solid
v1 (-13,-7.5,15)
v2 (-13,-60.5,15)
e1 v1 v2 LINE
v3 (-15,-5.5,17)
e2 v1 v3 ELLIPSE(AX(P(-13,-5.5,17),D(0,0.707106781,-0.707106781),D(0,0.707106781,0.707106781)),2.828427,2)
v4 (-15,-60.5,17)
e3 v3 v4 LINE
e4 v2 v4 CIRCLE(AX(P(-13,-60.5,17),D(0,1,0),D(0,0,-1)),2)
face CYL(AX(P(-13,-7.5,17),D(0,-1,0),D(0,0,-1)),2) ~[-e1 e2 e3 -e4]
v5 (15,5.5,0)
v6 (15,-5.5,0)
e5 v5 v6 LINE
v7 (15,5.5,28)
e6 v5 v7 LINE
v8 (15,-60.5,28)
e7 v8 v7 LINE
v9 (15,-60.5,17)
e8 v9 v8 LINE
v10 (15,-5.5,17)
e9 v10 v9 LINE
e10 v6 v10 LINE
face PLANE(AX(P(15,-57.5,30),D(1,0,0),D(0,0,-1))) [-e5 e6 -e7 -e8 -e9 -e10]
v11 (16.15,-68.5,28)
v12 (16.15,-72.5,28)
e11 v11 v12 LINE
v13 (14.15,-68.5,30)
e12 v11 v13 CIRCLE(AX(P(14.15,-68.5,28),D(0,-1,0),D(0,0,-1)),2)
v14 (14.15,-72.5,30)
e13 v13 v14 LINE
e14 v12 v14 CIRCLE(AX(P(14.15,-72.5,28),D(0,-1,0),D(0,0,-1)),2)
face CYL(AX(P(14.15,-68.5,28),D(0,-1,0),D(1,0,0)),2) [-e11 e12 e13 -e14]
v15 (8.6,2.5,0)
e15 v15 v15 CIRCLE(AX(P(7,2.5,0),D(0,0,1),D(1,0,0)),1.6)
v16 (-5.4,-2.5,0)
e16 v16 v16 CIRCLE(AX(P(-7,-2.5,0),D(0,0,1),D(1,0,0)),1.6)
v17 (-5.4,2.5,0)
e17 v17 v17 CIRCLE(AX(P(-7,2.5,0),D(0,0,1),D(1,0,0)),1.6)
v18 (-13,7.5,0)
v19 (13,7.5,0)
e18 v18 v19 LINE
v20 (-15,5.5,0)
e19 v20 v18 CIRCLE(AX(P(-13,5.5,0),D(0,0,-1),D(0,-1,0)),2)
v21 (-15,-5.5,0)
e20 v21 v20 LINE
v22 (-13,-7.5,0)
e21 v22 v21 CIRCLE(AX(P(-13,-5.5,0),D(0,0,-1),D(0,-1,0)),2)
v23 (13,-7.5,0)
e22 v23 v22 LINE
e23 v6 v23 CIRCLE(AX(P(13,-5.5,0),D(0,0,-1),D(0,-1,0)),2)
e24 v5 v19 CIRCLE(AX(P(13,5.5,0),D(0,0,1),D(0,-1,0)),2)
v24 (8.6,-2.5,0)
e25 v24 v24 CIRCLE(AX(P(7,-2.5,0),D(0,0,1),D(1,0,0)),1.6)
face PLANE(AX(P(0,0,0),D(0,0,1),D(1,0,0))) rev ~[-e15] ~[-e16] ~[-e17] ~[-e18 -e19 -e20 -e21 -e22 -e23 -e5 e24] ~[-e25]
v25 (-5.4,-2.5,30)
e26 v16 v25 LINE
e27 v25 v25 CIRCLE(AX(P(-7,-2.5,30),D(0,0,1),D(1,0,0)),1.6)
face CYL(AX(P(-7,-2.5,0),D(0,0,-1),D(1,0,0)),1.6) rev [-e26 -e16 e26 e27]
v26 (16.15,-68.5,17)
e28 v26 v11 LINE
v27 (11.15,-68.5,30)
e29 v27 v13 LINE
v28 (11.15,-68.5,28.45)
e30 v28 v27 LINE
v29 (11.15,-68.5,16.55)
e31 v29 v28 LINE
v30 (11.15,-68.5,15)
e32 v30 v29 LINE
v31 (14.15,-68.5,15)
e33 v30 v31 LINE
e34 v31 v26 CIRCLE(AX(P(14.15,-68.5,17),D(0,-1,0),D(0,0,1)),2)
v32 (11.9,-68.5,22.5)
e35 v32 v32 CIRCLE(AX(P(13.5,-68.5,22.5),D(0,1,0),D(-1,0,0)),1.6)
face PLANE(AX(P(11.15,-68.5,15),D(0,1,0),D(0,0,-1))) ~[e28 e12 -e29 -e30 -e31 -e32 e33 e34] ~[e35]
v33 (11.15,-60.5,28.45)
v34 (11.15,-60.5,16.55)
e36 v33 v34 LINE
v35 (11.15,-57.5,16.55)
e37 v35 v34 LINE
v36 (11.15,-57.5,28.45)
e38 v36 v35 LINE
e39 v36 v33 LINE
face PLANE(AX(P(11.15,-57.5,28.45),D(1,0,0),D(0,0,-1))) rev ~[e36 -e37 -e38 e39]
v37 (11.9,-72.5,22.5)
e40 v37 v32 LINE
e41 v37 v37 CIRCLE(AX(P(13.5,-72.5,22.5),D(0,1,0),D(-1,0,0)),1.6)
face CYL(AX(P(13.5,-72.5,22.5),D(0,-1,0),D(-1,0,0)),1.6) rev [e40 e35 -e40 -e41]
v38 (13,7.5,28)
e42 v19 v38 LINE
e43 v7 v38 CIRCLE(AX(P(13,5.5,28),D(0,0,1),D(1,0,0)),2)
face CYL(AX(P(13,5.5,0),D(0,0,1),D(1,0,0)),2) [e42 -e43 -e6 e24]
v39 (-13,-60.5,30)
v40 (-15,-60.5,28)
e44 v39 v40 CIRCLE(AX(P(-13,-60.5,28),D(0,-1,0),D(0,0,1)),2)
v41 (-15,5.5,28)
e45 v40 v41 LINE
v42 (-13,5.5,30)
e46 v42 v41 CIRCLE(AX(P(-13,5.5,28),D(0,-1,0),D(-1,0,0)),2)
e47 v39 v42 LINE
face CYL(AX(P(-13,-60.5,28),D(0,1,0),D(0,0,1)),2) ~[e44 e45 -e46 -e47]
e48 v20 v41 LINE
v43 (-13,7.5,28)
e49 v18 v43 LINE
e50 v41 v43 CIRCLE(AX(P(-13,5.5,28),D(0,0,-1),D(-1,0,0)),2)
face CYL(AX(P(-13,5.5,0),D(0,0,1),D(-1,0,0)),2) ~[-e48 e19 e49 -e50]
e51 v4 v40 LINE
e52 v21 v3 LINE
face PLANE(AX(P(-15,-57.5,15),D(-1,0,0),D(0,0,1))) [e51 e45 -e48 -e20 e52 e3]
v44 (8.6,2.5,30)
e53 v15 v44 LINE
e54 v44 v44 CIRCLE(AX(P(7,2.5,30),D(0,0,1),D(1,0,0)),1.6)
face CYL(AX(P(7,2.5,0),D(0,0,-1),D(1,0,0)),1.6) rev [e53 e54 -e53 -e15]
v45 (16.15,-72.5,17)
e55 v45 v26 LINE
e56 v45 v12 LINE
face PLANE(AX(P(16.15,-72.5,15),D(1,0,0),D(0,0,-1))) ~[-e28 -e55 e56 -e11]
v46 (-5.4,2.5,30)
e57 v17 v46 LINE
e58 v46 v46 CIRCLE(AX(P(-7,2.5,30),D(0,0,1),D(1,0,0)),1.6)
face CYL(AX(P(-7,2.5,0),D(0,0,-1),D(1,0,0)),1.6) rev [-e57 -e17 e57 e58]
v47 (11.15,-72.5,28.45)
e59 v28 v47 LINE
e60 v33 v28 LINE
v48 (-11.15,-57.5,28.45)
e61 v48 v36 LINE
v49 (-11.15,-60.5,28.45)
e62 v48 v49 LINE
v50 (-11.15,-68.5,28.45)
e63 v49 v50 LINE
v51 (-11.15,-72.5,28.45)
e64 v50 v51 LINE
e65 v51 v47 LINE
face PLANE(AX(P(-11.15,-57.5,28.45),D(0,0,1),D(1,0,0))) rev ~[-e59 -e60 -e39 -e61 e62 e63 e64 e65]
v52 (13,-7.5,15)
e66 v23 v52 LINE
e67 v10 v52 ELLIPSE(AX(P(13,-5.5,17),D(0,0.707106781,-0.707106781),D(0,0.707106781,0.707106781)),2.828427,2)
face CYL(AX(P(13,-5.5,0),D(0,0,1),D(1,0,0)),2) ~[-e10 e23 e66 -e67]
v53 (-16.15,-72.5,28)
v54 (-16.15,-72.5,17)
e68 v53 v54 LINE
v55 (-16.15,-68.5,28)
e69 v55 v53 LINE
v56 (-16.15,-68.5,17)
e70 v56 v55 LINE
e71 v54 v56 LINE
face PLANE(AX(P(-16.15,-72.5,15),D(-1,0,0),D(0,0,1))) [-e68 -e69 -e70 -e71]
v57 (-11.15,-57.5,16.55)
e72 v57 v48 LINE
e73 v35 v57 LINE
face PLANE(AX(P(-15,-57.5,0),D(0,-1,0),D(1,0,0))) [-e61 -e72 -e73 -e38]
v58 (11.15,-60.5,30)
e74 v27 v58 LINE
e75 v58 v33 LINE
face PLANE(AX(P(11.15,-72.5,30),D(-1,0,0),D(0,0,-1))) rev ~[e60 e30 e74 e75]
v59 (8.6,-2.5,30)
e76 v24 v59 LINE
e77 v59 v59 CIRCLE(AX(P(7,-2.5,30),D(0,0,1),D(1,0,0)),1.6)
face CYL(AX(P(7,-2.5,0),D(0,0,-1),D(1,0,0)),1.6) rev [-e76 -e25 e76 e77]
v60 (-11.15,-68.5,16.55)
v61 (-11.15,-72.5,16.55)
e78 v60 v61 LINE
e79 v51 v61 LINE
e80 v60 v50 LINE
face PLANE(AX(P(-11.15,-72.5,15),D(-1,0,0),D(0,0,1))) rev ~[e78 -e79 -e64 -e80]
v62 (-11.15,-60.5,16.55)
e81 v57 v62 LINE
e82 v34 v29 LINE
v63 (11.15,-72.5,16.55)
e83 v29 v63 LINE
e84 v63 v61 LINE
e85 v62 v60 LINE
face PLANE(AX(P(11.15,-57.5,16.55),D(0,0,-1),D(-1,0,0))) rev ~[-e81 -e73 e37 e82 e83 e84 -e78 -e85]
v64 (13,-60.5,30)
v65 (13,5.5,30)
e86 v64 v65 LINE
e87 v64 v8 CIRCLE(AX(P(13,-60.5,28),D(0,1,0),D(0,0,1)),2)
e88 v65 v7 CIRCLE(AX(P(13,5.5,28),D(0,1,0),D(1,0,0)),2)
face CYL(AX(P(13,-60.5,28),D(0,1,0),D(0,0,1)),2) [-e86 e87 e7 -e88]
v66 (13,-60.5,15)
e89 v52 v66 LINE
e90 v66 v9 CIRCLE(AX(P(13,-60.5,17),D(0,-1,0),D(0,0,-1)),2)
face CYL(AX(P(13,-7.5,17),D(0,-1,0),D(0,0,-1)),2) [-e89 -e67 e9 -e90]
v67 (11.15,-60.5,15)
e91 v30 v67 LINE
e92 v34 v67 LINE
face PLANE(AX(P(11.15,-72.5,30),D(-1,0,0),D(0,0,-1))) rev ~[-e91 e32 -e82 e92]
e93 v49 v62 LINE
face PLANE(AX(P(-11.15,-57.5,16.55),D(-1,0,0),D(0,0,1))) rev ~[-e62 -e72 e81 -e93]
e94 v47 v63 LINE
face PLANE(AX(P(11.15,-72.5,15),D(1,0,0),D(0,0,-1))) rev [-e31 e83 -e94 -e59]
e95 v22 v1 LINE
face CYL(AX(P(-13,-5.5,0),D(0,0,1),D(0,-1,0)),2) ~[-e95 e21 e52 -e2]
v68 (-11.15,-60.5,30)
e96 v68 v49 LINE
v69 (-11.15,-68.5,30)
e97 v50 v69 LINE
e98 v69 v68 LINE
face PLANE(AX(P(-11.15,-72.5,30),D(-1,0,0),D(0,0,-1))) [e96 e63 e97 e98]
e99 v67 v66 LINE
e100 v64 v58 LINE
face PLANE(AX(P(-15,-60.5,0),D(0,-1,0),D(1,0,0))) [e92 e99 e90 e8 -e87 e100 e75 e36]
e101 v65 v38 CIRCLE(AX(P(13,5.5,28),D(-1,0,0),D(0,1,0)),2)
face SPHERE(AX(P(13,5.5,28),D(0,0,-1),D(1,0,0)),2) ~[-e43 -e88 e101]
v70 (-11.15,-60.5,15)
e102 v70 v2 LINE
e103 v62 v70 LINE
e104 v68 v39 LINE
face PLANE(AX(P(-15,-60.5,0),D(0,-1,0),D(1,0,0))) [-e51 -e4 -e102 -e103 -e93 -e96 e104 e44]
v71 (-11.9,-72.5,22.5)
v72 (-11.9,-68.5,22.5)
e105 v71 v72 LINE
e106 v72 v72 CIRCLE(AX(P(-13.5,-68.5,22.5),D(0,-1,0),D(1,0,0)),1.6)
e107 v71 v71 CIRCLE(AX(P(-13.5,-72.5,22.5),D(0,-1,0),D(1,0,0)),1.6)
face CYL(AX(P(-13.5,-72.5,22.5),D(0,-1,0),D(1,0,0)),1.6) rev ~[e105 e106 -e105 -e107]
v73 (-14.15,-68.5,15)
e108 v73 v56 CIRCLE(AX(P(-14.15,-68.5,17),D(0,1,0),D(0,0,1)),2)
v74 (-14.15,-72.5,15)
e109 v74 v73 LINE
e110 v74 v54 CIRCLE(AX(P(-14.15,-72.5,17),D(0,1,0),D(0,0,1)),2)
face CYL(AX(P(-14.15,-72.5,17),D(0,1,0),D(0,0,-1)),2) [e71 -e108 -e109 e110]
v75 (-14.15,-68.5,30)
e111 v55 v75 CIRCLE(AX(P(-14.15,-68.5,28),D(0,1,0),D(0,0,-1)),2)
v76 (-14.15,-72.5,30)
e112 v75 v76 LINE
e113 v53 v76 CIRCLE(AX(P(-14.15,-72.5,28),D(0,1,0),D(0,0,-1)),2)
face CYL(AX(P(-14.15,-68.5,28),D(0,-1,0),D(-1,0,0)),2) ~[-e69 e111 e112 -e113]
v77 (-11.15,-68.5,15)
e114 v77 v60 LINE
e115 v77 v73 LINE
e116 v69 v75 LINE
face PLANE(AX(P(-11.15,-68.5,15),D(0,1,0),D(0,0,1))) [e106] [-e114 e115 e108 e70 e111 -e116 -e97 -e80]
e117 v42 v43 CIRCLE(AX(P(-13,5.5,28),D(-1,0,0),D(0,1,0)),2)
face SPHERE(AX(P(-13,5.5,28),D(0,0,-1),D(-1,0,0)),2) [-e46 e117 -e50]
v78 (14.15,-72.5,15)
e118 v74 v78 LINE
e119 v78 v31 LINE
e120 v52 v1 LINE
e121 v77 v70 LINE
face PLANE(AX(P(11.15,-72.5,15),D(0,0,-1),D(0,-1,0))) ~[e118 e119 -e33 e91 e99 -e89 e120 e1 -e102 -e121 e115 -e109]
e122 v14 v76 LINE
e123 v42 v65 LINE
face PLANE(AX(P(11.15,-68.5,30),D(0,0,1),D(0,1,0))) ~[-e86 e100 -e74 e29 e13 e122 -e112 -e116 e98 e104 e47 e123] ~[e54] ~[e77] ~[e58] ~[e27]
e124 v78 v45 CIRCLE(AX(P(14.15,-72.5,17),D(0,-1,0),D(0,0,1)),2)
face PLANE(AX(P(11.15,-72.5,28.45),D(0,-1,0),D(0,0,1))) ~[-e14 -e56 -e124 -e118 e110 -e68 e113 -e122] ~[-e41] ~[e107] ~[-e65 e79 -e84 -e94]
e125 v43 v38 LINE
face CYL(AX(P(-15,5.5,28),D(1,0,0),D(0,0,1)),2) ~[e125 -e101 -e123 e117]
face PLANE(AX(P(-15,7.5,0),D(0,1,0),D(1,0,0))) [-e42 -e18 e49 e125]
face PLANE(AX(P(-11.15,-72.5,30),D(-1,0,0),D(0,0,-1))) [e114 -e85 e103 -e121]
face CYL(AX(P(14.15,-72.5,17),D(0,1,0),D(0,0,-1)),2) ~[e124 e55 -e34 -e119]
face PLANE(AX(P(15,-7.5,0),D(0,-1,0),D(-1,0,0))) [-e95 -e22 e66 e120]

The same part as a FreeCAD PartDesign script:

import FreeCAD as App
import Part
import Sketcher
Q = App.Units.Quantity


def edges_at(feature, points):
    """Names of the edges that pass closest to the given points."""
    edges = feature.Shape.Edges
    near = lambda p: min(range(len(edges)), key=lambda i: edges[i].distToShape(Part.Vertex(*p))[0])
    return sorted({f"Edge{near(p) + 1}" for p in points})


def add_polygon(sketch, points):
    """Adds a closed chain of lines whose ends are joined by coincident constraints."""
    first, n = sketch.GeometryCount, len(points)
    for a, b in zip(points, points[1:] + points[:1]):
        sketch.addGeometry(Part.LineSegment(App.Vector(*a, 0), App.Vector(*b, 0)), False)
    for i in range(n):
        sketch.addConstraint(Sketcher.Constraint("Coincident", first + i, 2, first + (i + 1) % n, 1))

doc = App.newDocument("Part")
body = doc.addObject("PartDesign::Body", "Body")

# Sketch on XY plane
sketch1 = doc.addObject("Sketcher::SketchObject", "Sketch")
body.addObject(sketch1)
sketch1.AttachmentSupport = (doc.XY_Plane, [""])
sketch1.MapMode = "FlatFace"
add_polygon(sketch1, [(15, 7.5), (-15, 7.5), (-15, -7.5), (15, -7.5)])  # lines 0-3
sketch1.addGeometry(Part.Circle(App.Vector(-7, -2.5, 0), App.Vector(0, 0, 1), 1.6), False)  # 4
sketch1.addGeometry(Part.Circle(App.Vector(7, -2.5, 0), App.Vector(0, 0, 1), 1.6), False)  # 5
sketch1.addGeometry(Part.Circle(App.Vector(-7, 2.5, 0), App.Vector(0, 0, 1), 1.6), False)  # 6
sketch1.addGeometry(Part.Circle(App.Vector(7, 2.5, 0), App.Vector(0, 0, 1), 1.6), False)  # 7
sketch1.addConstraint(Sketcher.Constraint("Horizontal", 0))
sketch1.addConstraint(Sketcher.Constraint("Vertical", 1))
sketch1.addConstraint(Sketcher.Constraint("Horizontal", 2))
sketch1.addConstraint(Sketcher.Constraint("Vertical", 3))
sketch1.addConstraint(Sketcher.Constraint("Equal", 4, 5))
sketch1.addConstraint(Sketcher.Constraint("Equal", 5, 6))
sketch1.addConstraint(Sketcher.Constraint("Equal", 6, 7))
sketch1.addConstraint(Sketcher.Constraint("Symmetric", 5, 3, 6, 3, -1, 1))
sketch1.addConstraint(Sketcher.Constraint("Symmetric", 4, 3, 7, 3, -1, 1))
sketch1.addConstraint(Sketcher.Constraint("Symmetric", 0, 2, 2, 2, -1, 1))
sketch1.addConstraint(Sketcher.Constraint("Symmetric", 4, 3, 5, 3, -2))
sketch1.addConstraint(Sketcher.Constraint("Diameter", 4, Q("3.2 mm")))
sketch1.addConstraint(Sketcher.Constraint("DistanceX", 0, 2, 0, 1, Q("30 mm")))
sketch1.addConstraint(Sketcher.Constraint("DistanceY", 1, 2, 1, 1, Q("15 mm")))
sketch1.addConstraint(Sketcher.Constraint("DistanceX", 4, 3, 5, 3, Q("14 mm")))
sketch1.addConstraint(Sketcher.Constraint("DistanceY", 4, 3, -1, 1, Q("2.5 mm")))
pad1 = doc.addObject("PartDesign::Pad", "Pad")
body.addObject(pad1)
pad1.Profile = sketch1
pad1.Length = 30

# Sketch on XZ plane
sketch2 = doc.addObject("Sketcher::SketchObject", "Sketch001")
body.addObject(sketch2)
sketch2.AttachmentSupport = (doc.XZ_Plane, [""])
sketch2.MapMode = "FlatFace"
sketch2.AttachmentOffset = App.Placement(App.Vector(0, 0, 7.5), App.Rotation())
add_polygon(sketch2, [(15, 30), (-15, 30), (-15, 15), (15, 15)])  # lines 0-3
sketch2.addConstraint(Sketcher.Constraint("Horizontal", 0))
sketch2.addConstraint(Sketcher.Constraint("Vertical", 1))
sketch2.addConstraint(Sketcher.Constraint("Horizontal", 2))
sketch2.addConstraint(Sketcher.Constraint("Vertical", 3))
sketch2.addConstraint(Sketcher.Constraint("DistanceX", 0, 2, 0, 1, Q("30 mm")))
sketch2.addConstraint(Sketcher.Constraint("DistanceY", 1, 2, 1, 1, Q("15 mm")))
sketch2.addConstraint(Sketcher.Constraint("DistanceX", 0, 2, -1, 1, Q("15 mm")))
sketch2.addConstraint(Sketcher.Constraint("DistanceY", -1, 1, 0, 2, Q("30 mm")))
pad2 = doc.addObject("PartDesign::Pad", "Pad001")
body.addObject(pad2)
pad2.Profile = sketch2
pad2.Length = 50

# Sketch on XZ plane
sketch3 = doc.addObject("Sketcher::SketchObject", "Sketch002")
body.addObject(sketch3)
sketch3.AttachmentSupport = (doc.XZ_Plane, [""])
sketch3.MapMode = "FlatFace"
sketch3.AttachmentOffset = App.Placement(App.Vector(0, 0, 57.5), App.Rotation())
add_polygon(sketch3, [(-15, 30), (-15, 15), (15, 15), (15, 30)])  # lines 0-3
add_polygon(sketch3, [(-11.15, 16.55), (-11.15, 28.45), (11.15, 28.45), (11.15, 16.55)])  # lines 4-7
sketch3.addConstraint(Sketcher.Constraint("Vertical", 0))
sketch3.addConstraint(Sketcher.Constraint("Horizontal", 1))
sketch3.addConstraint(Sketcher.Constraint("Vertical", 2))
sketch3.addConstraint(Sketcher.Constraint("Horizontal", 3))
sketch3.addConstraint(Sketcher.Constraint("Vertical", 4))
sketch3.addConstraint(Sketcher.Constraint("Horizontal", 5))
sketch3.addConstraint(Sketcher.Constraint("Vertical", 6))
sketch3.addConstraint(Sketcher.Constraint("Horizontal", 7))
sketch3.addConstraint(Sketcher.Constraint("DistanceY", 0, 2, 0, 1, Q("15 mm")))
sketch3.addConstraint(Sketcher.Constraint("DistanceX", 5, 1, 5, 2, Q("22.3 mm")))
sketch3.addConstraint(Sketcher.Constraint("DistanceY", 4, 1, 4, 2, Q("11.9 mm")))
sketch3.addConstraint(Sketcher.Constraint("DistanceX", 0, 2, -1, 1, Q("15 mm")))
sketch3.addConstraint(Sketcher.Constraint("DistanceY", -1, 1, 0, 2, Q("15 mm")))
sketch3.addConstraint(Sketcher.Constraint("DistanceX", -1, 1, 1, 2, Q("15 mm")))
sketch3.addConstraint(Sketcher.Constraint("DistanceX", 4, 2, -1, 1, Q("11.15 mm")))
sketch3.addConstraint(Sketcher.Constraint("DistanceY", -1, 1, 4, 2, Q("28.45 mm")))
pad3 = doc.addObject("PartDesign::Pad", "Pad002")
body.addObject(pad3)
pad3.Profile = sketch3
pad3.Length = 15

# Sketch on XZ plane
sketch4 = doc.addObject("Sketcher::SketchObject", "Sketch003")
body.addObject(sketch4)
sketch4.AttachmentSupport = (doc.XZ_Plane, [""])
sketch4.MapMode = "FlatFace"
sketch4.AttachmentOffset = App.Placement(App.Vector(0, 0, 72.5), App.Rotation())
add_polygon(sketch4, [(15, 15), (15, 30), (11.15, 30), (11.15, 15)])  # lines 0-3
add_polygon(sketch4, [(-11.15, 15), (-11.15, 30), (-15, 30), (-15, 15)])  # lines 4-7
sketch4.addConstraint(Sketcher.Constraint("Vertical", 0))
sketch4.addConstraint(Sketcher.Constraint("Horizontal", 1))
sketch4.addConstraint(Sketcher.Constraint("Vertical", 2))
sketch4.addConstraint(Sketcher.Constraint("Horizontal", 3))
sketch4.addConstraint(Sketcher.Constraint("Vertical", 4))
sketch4.addConstraint(Sketcher.Constraint("Horizontal", 5))
sketch4.addConstraint(Sketcher.Constraint("Vertical", 6))
sketch4.addConstraint(Sketcher.Constraint("Horizontal", 7))
sketch4.addConstraint(Sketcher.Constraint("Symmetric", 1, 2, 4, 2, -2))
sketch4.addConstraint(Sketcher.Constraint("Symmetric", 3, 2, 6, 2, -2))
sketch4.addConstraint(Sketcher.Constraint("DistanceY", 0, 1, 0, 2, Q("15 mm")))
sketch4.addConstraint(Sketcher.Constraint("DistanceX", -1, 1, 0, 2, Q("15 mm")))
sketch4.addConstraint(Sketcher.Constraint("DistanceY", -1, 1, 2, 2, Q("15 mm")))
sketch4.addConstraint(Sketcher.Constraint("DistanceX", 1, 2, 1, 1, Q("3.85 mm")))
pocket1 = doc.addObject("PartDesign::Pocket", "Pocket")
body.addObject(pocket1)
pocket1.Profile = sketch4
pocket1.Length = 12

# Sketch on YZ plane
sketch5 = doc.addObject("Sketcher::SketchObject", "Sketch004")
body.addObject(sketch5)
sketch5.AttachmentSupport = (doc.YZ_Plane, [""])
sketch5.MapMode = "FlatFace"
sketch5.AttachmentOffset = App.Placement(App.Vector(0, 0, -11.15), App.Rotation())
add_polygon(sketch5, [(-72.5, 15), (-72.5, 30), (-68.5, 30), (-68.5, 15)])  # lines 0-3
sketch5.addConstraint(Sketcher.Constraint("Vertical", 0))
sketch5.addConstraint(Sketcher.Constraint("Horizontal", 1))
sketch5.addConstraint(Sketcher.Constraint("Vertical", 2))
sketch5.addConstraint(Sketcher.Constraint("Horizontal", 3))
sketch5.addConstraint(Sketcher.Constraint("DistanceX", 1, 1, 1, 2, Q("4 mm")))
sketch5.addConstraint(Sketcher.Constraint("DistanceY", 0, 1, 0, 2, Q("15 mm")))
sketch5.addConstraint(Sketcher.Constraint("DistanceY", -1, 1, 2, 2, Q("15 mm")))
sketch5.addConstraint(Sketcher.Constraint("DistanceX", 0, 2, -1, 1, Q("72.5 mm")))
pad4 = doc.addObject("PartDesign::Pad", "Pad003")
body.addObject(pad4)
pad4.Profile = sketch5
pad4.Length = 5
pad4.Reversed = True

# Sketch on XZ plane
sketch6 = doc.addObject("Sketcher::SketchObject", "Sketch005")
body.addObject(sketch6)
sketch6.AttachmentSupport = (doc.XZ_Plane, [""])
sketch6.MapMode = "FlatFace"
sketch6.AttachmentOffset = App.Placement(App.Vector(0, 0, 72.5), App.Rotation())
sketch6.addGeometry(Part.Circle(App.Vector(-13.5, 22.5, 0), App.Vector(0, 0, 1), 1.6), False)
sketch6.addConstraint(Sketcher.Constraint("Diameter", 0, Q("3.2 mm")))
sketch6.addConstraint(Sketcher.Constraint("DistanceX", 0, 3, -1, 1, Q("13.5 mm")))
sketch6.addConstraint(Sketcher.Constraint("DistanceY", -1, 1, 0, 3, Q("22.5 mm")))
pocket2 = doc.addObject("PartDesign::Pocket", "Pocket001")
body.addObject(pocket2)
pocket2.Profile = sketch6
pocket2.Length = 4
doc.recompute()

mirrored = doc.addObject("PartDesign::Mirrored", "Mirrored")
body.addObject(mirrored)
mirrored.Originals = [pad4]
mirrored.MirrorPlane = (doc.YZ_Plane, [""])
body.Tip = mirrored
doc.recompute()

mirrored2 = doc.addObject("PartDesign::Mirrored", "Mirrored001")
body.addObject(mirrored2)
mirrored2.Originals = [pocket2]
mirrored2.MirrorPlane = (doc.YZ_Plane, [""])
body.Tip = mirrored2
doc.recompute()

fillet = doc.addObject("PartDesign::Fillet", "Fillet")
body.addObject(fillet)
fillet.Base = (mirrored2, edges_at(mirrored2, [
    (15, -7.5, 7.5),
    (15, 7.5, 15),
    (-15, -7.5, 7.5),
    (-15, 7.5, 15),
    (-15, -34, 15),
    (15, -34, 15),
    (-15, -26.5, 30),
    (15, -26.5, 30),
    (0, 7.5, 30),
    (16.15, -70.5, 15),
    (-16.15, -70.5, 15),
    (-16.15, -70.5, 30),
    (16.15, -70.5, 30),
]))
fillet.Radius = 2

doc.recompute()
